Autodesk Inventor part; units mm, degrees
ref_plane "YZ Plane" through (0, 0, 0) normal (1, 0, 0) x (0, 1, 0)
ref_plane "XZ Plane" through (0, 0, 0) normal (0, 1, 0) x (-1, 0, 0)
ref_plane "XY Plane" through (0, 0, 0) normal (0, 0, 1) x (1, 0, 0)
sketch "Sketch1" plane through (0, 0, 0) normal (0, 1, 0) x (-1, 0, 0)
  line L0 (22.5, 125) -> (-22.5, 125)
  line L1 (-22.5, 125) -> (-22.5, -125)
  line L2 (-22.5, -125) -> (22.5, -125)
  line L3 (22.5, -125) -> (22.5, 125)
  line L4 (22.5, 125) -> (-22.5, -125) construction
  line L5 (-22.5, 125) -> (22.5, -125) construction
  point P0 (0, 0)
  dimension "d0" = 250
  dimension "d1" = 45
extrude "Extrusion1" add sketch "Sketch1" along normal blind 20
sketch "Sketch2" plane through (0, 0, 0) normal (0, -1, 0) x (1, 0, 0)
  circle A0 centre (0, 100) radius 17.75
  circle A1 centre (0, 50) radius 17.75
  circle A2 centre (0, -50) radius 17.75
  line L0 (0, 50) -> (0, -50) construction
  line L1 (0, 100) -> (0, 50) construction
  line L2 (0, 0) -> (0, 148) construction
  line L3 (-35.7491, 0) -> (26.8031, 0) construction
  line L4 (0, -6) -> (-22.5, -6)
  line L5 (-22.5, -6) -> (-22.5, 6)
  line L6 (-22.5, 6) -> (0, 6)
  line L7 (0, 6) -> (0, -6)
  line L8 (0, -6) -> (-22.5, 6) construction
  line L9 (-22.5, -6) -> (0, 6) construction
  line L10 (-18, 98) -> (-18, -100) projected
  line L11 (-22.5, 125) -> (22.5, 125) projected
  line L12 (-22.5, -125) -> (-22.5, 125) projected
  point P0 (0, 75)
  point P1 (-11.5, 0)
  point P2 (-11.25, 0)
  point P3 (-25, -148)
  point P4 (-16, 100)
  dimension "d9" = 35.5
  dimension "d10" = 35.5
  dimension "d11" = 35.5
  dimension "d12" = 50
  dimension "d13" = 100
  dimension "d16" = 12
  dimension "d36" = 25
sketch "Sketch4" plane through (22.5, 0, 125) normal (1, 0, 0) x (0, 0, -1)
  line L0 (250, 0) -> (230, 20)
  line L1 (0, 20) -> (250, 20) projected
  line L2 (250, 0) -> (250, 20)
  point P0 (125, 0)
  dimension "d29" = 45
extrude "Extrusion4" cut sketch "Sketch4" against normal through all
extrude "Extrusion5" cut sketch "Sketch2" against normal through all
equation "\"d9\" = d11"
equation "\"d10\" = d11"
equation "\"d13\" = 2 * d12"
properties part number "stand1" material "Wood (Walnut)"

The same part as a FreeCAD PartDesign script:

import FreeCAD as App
import Part
import Sketcher

V = App.Vector
Q = App.Units.Quantity


def add_polygon(sketch, points):
    """Adds a closed chain of lines whose ends are joined by coincident constraints."""
    first, n = sketch.GeometryCount, len(points)
    for a, b in zip(points, points[1:] + points[:1]):
        sketch.addGeometry(Part.LineSegment(App.Vector(*a, 0), App.Vector(*b, 0)), False)
    for i in range(n):
        sketch.addConstraint(Sketcher.Constraint("Coincident", first + i, 2, first + (i + 1) % n, 1))

doc = App.newDocument("Part")
body = doc.addObject("PartDesign::Body", "Body")

# Sketch on XZ plane
sketch1 = body.newObject("Sketcher::SketchObject", "Sketch")
sketch1.AttachmentSupport = (doc.getObject("XZ_Plane"), [""])
sketch1.MapMode = "FlatFace"
add_polygon(sketch1, [(-22, -125), (-22, 125), (22, 125), (22, -125)])  # lines 0-3
sketch1.addConstraint([
    Sketcher.Constraint("Vertical", 0),
    Sketcher.Constraint("Horizontal", 1),
    Sketcher.Constraint("Vertical", 2),
    Sketcher.Constraint("Horizontal", 3),
    Sketcher.Constraint("Symmetric", 0, 2, 2, 2, -1, 1),
    Sketcher.Constraint("DistanceX", 1, 1, 1, 2, Q("45 mm")),
    Sketcher.Constraint("DistanceY", 0, 1, 0, 2, Q("250 mm")),
])
pad1 = body.newObject("PartDesign::Pad", "Pad")
pad1.Profile = sketch1
pad1.Length = 20
pad1.Reversed = True

# Sketch on YZ plane
sketch2 = body.newObject("Sketcher::SketchObject", "Sketch001")
sketch2.AttachmentSupport = (doc.getObject("YZ_Plane"), [""])
sketch2.MapMode = "FlatFace"
sketch2.AttachmentOffset = App.Placement(V(0, 0, 22.5), App.Rotation())
add_polygon(sketch2, [(20, -105), (0, -125), (20, -125)])  # lines 0-2
sketch2.addConstraint([
    Sketcher.Constraint("Horizontal", 1),
    Sketcher.Constraint("Vertical", 2),
    Sketcher.Constraint("PointOnObject", 0, 2, -2),
    Sketcher.Constraint("Equal", 1, 2),
    Sketcher.Constraint("DistanceX", 1, 1, 1, 2, Q("20 mm")),
    Sketcher.Constraint("DistanceY", 0, 2, -1, 1, Q("125 mm")),
])
pocket1 = body.newObject("PartDesign::Pocket", "Pocket")
pocket1.Profile = sketch2
pocket1.Type = "ThroughAll"

# Sketch on XZ plane
sketch3 = body.newObject("Sketcher::SketchObject", "Sketch002")
sketch3.AttachmentSupport = (doc.getObject("XZ_Plane"), [""])
sketch3.MapMode = "FlatFace"
sketch3.addGeometry(Part.Circle(V(0, 100, 0), V(0, 0, 1), 18), False)  # 0
sketch3.addGeometry(Part.Circle(V(0, 50, 0), V(0, 0, 1), 18), False)  # 1
sketch3.addGeometry(Part.Circle(V(0, -50, 0), V(0, 0, 1), 18), False)  # 2
add_polygon(sketch3, [(0, -6), (0, 6), (-22, 6), (-22, -6)])  # lines 3-6
sketch3.addConstraint([
    Sketcher.Constraint("Vertical", 3),
    Sketcher.Constraint("Horizontal", 4),
    Sketcher.Constraint("Vertical", 5),
    Sketcher.Constraint("Horizontal", 6),
    Sketcher.Constraint("Equal", 0, 1),
    Sketcher.Constraint("Equal", 1, 2),
    Sketcher.Constraint("Symmetric", 1, 3, 2, 3, -1, 1),
    Sketcher.Constraint("Symmetric", 3, 2, 6, 2, -1, 1),
    Sketcher.Constraint("PointOnObject", 0, 3, -2),
    Sketcher.Constraint("PointOnObject", 1, 3, -2),
    Sketcher.Constraint("Diameter", 0, Q("35.5 mm")),
    Sketcher.Constraint("DistanceY", 3, 1, 3, 2, Q("12 mm")),
    Sketcher.Constraint("DistanceY", -1, 1, 0, 3, Q("100 mm")),
    Sketcher.Constraint("DistanceY", -1, 1, 1, 3, Q("50 mm")),
    Sketcher.Constraint("DistanceX", 4, 2, 4, 1, Q("22.5 mm")),
])
pocket2 = body.newObject("PartDesign::Pocket", "Pocket001")
pocket2.Profile = sketch3
pocket2.Type = "ThroughAll"

doc.recompute()
